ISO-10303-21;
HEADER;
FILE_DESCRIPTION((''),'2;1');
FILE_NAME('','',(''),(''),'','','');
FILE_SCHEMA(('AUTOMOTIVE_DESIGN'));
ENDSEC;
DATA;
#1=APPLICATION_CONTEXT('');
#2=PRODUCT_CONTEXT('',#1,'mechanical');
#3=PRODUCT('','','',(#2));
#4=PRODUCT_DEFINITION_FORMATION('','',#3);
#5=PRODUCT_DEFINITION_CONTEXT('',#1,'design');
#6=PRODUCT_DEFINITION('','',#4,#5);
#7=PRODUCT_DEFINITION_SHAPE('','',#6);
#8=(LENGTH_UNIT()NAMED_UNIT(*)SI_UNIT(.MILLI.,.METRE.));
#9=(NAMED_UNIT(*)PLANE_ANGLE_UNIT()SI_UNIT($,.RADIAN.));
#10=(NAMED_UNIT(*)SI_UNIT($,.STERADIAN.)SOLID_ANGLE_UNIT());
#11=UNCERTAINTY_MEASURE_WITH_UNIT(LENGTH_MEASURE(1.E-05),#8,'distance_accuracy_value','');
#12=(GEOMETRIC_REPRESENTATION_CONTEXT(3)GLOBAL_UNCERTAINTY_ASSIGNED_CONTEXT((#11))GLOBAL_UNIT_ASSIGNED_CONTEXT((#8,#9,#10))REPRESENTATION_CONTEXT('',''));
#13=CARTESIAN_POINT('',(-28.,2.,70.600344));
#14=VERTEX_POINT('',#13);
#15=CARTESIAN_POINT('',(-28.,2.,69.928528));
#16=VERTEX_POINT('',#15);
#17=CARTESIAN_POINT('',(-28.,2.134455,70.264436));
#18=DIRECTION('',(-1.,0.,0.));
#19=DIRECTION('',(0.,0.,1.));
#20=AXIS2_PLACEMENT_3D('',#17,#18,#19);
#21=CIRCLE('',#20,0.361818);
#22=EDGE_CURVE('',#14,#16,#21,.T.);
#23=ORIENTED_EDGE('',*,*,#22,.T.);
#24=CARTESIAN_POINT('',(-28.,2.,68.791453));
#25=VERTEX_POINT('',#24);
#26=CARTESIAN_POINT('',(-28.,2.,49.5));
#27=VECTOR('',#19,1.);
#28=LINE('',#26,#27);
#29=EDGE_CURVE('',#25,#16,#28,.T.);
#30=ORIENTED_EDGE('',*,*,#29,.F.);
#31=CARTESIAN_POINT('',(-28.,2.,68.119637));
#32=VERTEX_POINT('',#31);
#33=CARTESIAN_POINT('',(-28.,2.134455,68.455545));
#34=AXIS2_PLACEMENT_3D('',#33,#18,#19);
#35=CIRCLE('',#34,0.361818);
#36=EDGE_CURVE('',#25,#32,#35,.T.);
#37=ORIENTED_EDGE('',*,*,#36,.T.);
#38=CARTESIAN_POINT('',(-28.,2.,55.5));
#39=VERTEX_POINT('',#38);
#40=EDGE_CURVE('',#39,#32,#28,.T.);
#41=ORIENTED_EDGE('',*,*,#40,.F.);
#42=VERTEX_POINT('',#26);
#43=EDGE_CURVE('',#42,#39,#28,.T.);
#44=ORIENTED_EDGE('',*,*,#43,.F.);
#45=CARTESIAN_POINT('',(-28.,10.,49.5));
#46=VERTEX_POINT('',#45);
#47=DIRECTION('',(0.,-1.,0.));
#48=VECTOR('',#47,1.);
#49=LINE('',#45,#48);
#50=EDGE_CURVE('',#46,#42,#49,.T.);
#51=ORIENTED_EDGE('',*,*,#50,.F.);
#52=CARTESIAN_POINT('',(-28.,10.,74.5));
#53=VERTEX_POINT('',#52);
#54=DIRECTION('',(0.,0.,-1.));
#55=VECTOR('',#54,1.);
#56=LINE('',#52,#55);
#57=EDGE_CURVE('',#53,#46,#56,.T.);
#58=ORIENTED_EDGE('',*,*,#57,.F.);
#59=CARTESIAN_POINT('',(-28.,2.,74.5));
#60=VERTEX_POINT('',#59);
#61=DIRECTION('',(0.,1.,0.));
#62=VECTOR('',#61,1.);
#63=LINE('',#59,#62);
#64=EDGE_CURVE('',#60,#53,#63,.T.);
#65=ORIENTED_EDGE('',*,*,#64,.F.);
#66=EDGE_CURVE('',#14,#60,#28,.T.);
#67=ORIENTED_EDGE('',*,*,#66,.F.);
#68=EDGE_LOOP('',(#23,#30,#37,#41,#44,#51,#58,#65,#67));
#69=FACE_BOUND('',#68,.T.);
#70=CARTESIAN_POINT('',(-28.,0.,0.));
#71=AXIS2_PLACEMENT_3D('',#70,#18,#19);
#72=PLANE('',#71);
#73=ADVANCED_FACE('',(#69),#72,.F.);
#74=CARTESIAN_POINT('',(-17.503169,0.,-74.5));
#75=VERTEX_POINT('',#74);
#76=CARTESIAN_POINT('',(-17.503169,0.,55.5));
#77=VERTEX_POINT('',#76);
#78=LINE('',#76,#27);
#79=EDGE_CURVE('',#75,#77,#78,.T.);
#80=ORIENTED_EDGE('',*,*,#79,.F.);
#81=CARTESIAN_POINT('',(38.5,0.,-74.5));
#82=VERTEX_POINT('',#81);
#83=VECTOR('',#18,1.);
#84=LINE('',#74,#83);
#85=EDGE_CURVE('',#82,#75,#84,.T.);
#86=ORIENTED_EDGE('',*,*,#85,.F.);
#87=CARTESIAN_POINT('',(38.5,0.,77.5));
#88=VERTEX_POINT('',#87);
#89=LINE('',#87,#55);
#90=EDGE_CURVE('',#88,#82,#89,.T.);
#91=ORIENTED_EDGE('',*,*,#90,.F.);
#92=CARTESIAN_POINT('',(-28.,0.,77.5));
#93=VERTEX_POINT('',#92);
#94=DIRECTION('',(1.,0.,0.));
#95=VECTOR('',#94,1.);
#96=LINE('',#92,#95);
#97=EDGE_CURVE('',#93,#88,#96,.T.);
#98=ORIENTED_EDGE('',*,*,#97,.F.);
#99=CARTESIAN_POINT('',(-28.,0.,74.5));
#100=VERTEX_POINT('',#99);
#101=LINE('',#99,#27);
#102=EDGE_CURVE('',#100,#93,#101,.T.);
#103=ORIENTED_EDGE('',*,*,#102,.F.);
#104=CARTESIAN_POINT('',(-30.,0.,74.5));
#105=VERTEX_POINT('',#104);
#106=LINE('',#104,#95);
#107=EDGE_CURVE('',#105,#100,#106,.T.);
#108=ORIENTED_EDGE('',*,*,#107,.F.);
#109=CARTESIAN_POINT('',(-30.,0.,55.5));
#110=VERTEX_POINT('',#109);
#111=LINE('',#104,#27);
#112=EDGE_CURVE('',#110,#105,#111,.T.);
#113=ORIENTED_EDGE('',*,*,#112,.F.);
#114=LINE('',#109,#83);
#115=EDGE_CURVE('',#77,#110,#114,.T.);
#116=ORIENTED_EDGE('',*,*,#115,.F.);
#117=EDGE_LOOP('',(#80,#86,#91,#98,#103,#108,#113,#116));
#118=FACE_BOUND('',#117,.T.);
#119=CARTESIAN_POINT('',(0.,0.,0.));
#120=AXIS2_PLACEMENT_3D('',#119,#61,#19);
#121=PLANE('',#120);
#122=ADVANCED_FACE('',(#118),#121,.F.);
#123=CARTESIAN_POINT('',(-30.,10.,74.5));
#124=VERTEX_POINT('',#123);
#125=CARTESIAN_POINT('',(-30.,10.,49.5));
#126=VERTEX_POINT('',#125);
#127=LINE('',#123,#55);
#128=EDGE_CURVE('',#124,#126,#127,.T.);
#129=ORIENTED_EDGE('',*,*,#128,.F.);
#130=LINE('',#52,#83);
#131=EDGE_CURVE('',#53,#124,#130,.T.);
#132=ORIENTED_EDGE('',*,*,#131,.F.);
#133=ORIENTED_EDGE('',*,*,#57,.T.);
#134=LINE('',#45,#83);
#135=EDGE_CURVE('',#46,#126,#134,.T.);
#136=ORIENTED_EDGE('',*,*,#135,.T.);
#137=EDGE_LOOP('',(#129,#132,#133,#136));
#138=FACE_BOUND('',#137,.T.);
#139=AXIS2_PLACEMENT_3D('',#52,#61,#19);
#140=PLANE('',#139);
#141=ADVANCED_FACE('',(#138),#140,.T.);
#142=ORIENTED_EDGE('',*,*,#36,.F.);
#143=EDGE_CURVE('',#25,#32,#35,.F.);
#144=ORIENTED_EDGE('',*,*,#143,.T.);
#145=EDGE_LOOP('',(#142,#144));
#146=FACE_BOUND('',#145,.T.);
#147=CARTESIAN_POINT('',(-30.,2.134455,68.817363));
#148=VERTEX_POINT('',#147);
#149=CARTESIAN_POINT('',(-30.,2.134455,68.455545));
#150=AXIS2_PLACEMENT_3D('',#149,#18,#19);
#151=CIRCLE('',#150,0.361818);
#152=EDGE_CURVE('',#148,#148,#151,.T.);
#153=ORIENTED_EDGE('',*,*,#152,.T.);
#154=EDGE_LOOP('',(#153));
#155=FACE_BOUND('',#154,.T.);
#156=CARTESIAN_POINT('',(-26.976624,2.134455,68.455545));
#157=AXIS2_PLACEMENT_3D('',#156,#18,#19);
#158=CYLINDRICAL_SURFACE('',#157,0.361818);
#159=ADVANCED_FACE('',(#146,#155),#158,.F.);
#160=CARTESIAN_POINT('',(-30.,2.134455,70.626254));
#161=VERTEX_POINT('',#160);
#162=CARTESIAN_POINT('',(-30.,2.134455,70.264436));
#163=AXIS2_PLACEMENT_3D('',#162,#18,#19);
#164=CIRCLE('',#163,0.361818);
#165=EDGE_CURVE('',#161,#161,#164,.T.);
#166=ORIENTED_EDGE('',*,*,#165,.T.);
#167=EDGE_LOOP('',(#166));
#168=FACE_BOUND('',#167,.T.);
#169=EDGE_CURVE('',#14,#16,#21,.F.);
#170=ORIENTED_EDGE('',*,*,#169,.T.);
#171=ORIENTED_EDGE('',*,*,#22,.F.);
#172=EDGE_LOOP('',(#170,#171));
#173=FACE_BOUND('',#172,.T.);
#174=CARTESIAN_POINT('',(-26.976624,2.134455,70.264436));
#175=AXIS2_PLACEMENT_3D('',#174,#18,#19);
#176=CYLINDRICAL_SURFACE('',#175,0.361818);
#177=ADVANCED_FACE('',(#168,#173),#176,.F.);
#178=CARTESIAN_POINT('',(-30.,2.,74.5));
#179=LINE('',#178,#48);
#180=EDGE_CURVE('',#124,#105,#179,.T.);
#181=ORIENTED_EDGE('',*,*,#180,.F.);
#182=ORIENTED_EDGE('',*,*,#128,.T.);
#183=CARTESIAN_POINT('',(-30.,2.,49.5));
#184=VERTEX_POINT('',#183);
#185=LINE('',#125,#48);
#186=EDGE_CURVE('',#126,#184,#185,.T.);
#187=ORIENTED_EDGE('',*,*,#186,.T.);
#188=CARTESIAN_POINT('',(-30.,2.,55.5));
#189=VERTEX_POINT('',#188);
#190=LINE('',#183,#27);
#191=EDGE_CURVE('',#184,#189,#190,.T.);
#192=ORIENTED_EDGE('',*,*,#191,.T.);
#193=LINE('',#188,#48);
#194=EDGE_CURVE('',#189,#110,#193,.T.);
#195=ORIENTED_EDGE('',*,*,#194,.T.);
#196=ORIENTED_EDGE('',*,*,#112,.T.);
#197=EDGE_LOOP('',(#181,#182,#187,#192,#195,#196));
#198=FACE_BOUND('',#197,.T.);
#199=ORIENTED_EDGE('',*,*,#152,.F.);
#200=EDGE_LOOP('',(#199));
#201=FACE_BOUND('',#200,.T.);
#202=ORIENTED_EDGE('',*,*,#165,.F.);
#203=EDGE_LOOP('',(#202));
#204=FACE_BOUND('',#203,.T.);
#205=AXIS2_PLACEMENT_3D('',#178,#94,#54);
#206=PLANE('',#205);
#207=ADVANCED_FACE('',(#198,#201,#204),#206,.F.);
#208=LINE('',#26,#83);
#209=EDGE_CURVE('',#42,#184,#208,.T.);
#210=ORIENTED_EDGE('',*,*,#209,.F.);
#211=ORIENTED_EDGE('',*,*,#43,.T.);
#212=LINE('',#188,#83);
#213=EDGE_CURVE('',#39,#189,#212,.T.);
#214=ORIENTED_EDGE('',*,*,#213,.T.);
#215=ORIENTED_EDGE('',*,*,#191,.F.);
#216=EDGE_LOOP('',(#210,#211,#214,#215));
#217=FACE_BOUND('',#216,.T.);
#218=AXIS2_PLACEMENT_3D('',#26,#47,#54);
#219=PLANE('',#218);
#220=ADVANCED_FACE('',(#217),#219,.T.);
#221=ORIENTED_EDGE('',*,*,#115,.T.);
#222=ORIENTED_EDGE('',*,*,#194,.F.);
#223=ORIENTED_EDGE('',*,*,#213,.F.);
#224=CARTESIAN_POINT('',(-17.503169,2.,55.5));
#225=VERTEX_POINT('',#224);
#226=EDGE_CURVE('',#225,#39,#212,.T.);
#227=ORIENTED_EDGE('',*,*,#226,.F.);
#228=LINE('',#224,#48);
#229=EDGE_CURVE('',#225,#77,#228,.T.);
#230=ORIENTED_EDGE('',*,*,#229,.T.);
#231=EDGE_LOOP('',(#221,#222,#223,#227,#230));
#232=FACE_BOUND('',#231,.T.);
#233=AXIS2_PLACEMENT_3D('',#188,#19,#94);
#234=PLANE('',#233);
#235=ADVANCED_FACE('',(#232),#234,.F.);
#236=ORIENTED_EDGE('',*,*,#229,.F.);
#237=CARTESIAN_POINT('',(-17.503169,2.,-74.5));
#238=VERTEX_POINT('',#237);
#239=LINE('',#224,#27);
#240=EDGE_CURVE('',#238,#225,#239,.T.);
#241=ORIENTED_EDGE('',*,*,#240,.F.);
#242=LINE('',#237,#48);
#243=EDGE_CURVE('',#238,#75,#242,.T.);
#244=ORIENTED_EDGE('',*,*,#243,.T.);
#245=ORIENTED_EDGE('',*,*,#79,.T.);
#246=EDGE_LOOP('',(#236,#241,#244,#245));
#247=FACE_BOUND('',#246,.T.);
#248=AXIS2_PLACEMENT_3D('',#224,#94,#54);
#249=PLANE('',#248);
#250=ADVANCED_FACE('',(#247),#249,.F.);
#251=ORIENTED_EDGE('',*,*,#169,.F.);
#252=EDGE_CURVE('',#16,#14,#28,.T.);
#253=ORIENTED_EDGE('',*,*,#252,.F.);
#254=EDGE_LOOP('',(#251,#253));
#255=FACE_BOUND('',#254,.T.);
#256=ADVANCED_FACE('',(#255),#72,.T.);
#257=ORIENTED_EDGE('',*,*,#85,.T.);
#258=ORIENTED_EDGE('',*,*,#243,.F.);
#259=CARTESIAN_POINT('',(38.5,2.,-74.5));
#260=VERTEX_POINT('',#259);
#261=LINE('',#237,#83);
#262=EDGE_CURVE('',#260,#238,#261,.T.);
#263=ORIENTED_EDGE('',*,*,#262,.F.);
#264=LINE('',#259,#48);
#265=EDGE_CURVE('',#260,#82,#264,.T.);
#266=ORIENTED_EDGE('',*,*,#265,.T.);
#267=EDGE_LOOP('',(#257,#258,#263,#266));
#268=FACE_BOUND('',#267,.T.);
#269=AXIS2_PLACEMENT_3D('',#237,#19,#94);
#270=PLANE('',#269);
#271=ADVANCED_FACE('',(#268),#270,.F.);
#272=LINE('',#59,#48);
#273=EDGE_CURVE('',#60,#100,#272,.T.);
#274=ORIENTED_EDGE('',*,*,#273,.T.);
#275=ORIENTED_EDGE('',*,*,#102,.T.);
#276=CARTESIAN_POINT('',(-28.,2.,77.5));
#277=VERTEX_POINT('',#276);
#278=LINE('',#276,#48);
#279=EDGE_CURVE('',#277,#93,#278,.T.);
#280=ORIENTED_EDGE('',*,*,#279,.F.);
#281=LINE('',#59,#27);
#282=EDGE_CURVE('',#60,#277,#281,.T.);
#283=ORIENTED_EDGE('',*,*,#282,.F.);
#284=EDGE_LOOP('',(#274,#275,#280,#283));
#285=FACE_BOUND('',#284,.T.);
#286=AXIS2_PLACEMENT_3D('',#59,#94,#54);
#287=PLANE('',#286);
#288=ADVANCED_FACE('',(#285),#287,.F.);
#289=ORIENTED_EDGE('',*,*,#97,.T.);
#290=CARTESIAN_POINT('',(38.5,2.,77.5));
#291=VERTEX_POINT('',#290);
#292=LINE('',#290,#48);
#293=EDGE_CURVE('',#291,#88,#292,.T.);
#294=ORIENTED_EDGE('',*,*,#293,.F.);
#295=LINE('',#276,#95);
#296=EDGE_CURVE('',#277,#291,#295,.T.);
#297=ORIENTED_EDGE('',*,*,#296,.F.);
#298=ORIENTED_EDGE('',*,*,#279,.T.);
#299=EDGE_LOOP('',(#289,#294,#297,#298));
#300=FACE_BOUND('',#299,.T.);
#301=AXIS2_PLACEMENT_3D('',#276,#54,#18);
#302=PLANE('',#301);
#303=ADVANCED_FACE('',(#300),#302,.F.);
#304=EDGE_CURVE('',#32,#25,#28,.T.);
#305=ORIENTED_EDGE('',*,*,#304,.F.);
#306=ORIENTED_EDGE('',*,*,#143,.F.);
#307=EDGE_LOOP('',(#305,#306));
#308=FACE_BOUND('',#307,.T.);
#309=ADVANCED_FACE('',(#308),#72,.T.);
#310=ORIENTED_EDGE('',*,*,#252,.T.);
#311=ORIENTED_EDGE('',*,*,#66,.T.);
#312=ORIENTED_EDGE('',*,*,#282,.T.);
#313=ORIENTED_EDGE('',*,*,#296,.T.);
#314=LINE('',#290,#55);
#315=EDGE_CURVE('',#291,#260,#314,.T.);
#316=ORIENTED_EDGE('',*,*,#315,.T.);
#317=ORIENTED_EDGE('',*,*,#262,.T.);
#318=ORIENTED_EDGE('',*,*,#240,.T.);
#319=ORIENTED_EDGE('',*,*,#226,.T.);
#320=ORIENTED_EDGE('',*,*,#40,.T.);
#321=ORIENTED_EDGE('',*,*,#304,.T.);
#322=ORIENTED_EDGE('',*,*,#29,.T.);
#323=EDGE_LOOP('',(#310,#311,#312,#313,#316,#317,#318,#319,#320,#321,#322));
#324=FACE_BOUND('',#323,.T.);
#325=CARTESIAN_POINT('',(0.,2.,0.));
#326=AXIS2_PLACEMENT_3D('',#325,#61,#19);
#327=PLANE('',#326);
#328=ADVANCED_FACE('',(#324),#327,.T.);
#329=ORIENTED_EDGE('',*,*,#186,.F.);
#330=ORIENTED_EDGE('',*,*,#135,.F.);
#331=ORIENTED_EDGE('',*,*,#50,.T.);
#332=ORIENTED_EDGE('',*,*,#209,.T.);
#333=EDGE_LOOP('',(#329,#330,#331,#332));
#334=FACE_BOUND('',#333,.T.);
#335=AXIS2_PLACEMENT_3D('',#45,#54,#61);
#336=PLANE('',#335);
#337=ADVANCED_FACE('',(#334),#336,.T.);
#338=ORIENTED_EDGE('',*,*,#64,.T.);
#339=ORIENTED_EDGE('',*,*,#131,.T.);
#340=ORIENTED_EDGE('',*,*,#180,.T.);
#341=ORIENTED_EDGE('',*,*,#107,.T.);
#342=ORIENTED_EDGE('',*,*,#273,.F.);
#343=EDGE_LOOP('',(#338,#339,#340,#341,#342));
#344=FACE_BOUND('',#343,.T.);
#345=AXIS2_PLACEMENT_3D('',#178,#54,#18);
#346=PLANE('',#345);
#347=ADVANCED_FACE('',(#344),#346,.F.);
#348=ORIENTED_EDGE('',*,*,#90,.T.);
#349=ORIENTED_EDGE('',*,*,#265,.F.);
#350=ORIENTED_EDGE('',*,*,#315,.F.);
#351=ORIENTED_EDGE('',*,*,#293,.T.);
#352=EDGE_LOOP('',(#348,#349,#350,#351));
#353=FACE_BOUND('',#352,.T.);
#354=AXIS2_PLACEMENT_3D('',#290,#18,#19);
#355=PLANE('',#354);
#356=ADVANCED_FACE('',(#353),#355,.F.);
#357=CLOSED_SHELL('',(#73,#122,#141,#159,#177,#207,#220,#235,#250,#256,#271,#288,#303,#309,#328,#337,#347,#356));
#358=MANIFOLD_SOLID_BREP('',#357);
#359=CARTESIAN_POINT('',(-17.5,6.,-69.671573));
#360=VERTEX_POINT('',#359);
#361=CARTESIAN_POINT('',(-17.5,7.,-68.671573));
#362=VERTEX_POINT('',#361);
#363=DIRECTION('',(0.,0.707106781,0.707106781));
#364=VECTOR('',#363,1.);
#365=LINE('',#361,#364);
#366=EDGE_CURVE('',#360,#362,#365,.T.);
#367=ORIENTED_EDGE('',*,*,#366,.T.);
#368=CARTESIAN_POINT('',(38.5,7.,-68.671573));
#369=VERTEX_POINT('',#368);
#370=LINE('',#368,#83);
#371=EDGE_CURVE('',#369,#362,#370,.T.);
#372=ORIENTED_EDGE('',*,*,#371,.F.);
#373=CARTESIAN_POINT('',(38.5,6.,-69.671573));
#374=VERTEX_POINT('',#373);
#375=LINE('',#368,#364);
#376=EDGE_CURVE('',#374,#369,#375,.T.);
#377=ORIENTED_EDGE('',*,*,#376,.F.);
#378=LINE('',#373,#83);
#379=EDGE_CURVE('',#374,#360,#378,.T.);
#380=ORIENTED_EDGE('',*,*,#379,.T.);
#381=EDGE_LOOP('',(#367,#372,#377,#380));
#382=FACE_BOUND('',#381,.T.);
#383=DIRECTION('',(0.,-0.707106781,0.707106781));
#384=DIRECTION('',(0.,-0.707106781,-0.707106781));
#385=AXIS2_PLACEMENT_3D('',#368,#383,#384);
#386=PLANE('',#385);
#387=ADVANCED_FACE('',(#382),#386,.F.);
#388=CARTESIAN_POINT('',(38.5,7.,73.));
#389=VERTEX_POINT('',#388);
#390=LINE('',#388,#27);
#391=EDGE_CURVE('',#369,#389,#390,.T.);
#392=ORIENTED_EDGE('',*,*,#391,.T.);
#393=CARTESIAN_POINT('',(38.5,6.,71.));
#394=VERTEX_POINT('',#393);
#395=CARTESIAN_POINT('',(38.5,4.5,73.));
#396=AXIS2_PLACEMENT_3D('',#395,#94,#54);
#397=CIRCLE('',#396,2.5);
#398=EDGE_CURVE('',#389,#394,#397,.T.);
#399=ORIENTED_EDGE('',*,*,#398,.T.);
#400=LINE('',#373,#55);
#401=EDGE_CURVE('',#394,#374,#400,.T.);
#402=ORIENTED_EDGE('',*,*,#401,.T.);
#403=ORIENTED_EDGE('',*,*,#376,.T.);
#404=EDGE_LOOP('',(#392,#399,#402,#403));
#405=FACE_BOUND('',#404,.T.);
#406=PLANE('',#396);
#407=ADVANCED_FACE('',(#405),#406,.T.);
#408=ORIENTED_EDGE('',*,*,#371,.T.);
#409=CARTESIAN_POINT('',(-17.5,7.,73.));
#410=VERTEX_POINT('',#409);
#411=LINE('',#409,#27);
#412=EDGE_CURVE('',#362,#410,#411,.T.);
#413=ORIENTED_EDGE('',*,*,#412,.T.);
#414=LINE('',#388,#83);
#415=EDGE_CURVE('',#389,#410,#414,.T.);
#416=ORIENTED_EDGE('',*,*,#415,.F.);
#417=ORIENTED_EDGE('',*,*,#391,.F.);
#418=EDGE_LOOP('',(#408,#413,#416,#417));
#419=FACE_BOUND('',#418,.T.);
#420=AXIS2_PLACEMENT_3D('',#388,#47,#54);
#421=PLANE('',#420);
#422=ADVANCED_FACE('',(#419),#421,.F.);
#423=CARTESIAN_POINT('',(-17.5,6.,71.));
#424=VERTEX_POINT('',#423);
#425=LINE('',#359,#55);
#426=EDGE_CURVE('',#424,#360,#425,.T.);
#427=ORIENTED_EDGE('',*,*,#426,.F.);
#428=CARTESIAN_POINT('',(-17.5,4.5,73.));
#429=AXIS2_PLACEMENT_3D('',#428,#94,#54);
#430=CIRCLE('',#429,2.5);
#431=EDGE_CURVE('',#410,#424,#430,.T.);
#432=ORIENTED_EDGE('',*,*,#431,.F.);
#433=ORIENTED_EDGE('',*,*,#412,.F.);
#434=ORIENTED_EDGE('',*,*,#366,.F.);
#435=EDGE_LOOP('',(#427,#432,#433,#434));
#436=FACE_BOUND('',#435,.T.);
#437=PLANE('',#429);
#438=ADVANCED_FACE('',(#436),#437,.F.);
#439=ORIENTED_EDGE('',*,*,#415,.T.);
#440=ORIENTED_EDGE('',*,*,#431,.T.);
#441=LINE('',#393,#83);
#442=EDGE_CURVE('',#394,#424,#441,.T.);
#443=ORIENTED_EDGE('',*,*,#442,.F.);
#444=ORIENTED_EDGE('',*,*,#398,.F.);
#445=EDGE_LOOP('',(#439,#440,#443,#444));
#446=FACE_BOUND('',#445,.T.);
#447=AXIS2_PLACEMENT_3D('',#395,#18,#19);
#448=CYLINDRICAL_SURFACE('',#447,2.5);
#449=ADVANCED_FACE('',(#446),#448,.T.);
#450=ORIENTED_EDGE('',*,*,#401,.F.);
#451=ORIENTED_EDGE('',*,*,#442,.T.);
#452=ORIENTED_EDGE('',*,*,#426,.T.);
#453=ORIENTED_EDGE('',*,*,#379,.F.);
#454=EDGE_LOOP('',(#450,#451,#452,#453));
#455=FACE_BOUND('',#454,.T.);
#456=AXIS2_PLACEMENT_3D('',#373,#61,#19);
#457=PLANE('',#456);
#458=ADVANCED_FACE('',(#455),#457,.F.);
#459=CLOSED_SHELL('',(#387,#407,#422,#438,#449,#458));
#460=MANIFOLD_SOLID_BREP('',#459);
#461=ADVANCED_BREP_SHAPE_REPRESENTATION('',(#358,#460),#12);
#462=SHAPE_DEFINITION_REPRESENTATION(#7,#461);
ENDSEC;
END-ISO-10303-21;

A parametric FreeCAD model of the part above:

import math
import FreeCAD as App
import Part
import Sketcher
Q = App.Units.Quantity


def add_polygon(sketch, points):
    """Adds a closed chain of lines whose ends are joined by coincident constraints."""
    first, n = sketch.GeometryCount, len(points)
    for a, b in zip(points, points[1:] + points[:1]):
        sketch.addGeometry(Part.LineSegment(App.Vector(*a, 0), App.Vector(*b, 0)), False)
    for i in range(n):
        sketch.addConstraint(Sketcher.Constraint("Coincident", first + i, 2, first + (i + 1) % n, 1))

doc = App.newDocument("Part")
body = doc.addObject("PartDesign::Body", "Body")

sketch1 = body.newObject("Sketcher::SketchObject", "Sketch")
sketch1.AttachmentSupport = (doc.getObject("XZ_Plane"), [""])
sketch1.MapMode = "FlatFace"
add_polygon(sketch1, [(-30, 74.5), (-28, 74.5), (-28, 77.5), (38.5, 77.5), (38.5, -74.5), (-17.503169, -74.5), (-17.503169, 55.5), (-30, 55.5)])
sketch1.addConstraint([
    Sketcher.Constraint("Horizontal", 0),
    Sketcher.Constraint("Vertical", 1),
    Sketcher.Constraint("Horizontal", 2),
    Sketcher.Constraint("Vertical", 3),
    Sketcher.Constraint("Horizontal", 4),
    Sketcher.Constraint("Vertical", 5),
    Sketcher.Constraint("Horizontal", 6),
    Sketcher.Constraint("Vertical", 7),
    Sketcher.Constraint("DistanceX", 0, 1, 0, 2, 2.0),
    Sketcher.Constraint("DistanceY", 1, 1, 1, 2, 3.0),
    Sketcher.Constraint("DistanceY", 3, 2, 3, 1, 152.0),
    Sketcher.Constraint("DistanceY", 5, 1, 5, 2, 130.0),
    Sketcher.Constraint("DistanceX", 2, 1, 2, 2, 66.5),
    Sketcher.Constraint("DistanceX", 0, 2, -1, 1, 28.0),
    Sketcher.Constraint("DistanceY", -1, 1, 0, 2, 74.5),
    Sketcher.Constraint("DistanceX", 4, 2, 4, 1, 56.003169),
])
pad1 = body.newObject("PartDesign::Pad", "Pad")
pad1.Profile = sketch1
pad1.Length = 2
pad1.Reversed = True

sketch2 = body.newObject("Sketcher::SketchObject", "Sketch001")
sketch2.AttachmentSupport = (doc.getObject("YZ_Plane"), [""])
sketch2.MapMode = "FlatFace"
sketch2.AttachmentOffset = App.Placement(App.Vector(0, 0, -30), App.Rotation())
add_polygon(sketch2, [(10, 49.5), (2, 49.5), (2, 74.5), (10, 74.5)])
sketch2.addConstraint([
    Sketcher.Constraint("Horizontal", 0),
    Sketcher.Constraint("Vertical", 1),
    Sketcher.Constraint("Horizontal", 2),
    Sketcher.Constraint("Vertical", 3),
    Sketcher.Constraint("DistanceX", 0, 2, 0, 1, 8.0),
    Sketcher.Constraint("DistanceY", 1, 1, 1, 2, 25.0),
    Sketcher.Constraint("DistanceX", -1, 1, 0, 2, 2.0),
    Sketcher.Constraint("DistanceY", -1, 1, 0, 2, 49.5),
])
pad2 = body.newObject("PartDesign::Pad", "Pad001")
pad2.Profile = sketch2
pad2.Length = 2

sketch3 = body.newObject("Sketcher::SketchObject", "Sketch002")
sketch3.AttachmentSupport = (doc.getObject("YZ_Plane"), [""])
sketch3.MapMode = "FlatFace"
sketch3.AttachmentOffset = App.Placement(App.Vector(0, 0, -30), App.Rotation())
sketch3.addGeometry([
    Part.Circle(App.Vector(2.134455, 68.455545, 0), App.Vector(0, 0, 1), 0.361818),
    Part.Circle(App.Vector(2.134455, 70.264436, 0), App.Vector(0, 0, 1), 0.361818),
], False)
sketch3.addConstraint([
    Sketcher.Constraint("Equal", 0, 1),
    Sketcher.Constraint("Vertical", 0, 3, 1, 3),
    Sketcher.Constraint("Diameter", 0, 0.723636),
    Sketcher.Constraint("DistanceY", 0, 3, 1, 3, 1.808891),
    Sketcher.Constraint("DistanceX", -1, 1, 0, 3, 2.134455),
    Sketcher.Constraint("DistanceY", -1, 1, 0, 3, 68.455545),
])
pocket1 = body.newObject("PartDesign::Pocket", "Pocket")
pocket1.Profile = sketch3
pocket1.Length = 2
pocket1.Reversed = True
body2 = doc.addObject("PartDesign::Body", "Body001")

sketch4 = body2.newObject("Sketcher::SketchObject", "Sketch003")
sketch4.AttachmentSupport = (doc.getObject("YZ_Plane001"), [""])
sketch4.MapMode = "FlatFace"
sketch4.AttachmentOffset = App.Placement(App.Vector(0, 0, 10.5), App.Rotation())
sketch4.addGeometry([
    Part.LineSegment(App.Vector(6, -69.671573, 0), App.Vector(7, -68.671573, 0)),
    Part.LineSegment(App.Vector(7, -68.671573, 0), App.Vector(7, 73, 0)),
    Part.ArcOfCircle(Part.Circle(App.Vector(4.5, 73, 0), App.Vector(0, 0, 1), 2.5), math.radians(0), math.radians(306.869898)),
    Part.LineSegment(App.Vector(6, 71, 0), App.Vector(6, -69.671573, 0)),
], False)
sketch4.addConstraint([
    Sketcher.Constraint("Coincident", 0, 2, 1, 1),
    Sketcher.Constraint("Tangent", 1, 2, 2, 1),
    Sketcher.Constraint("Coincident", 2, 2, 3, 1),
    Sketcher.Constraint("Coincident", 3, 2, 0, 1),
    Sketcher.Constraint("Vertical", 1),
    Sketcher.Constraint("Vertical", 3),
    Sketcher.Constraint("Radius", 2, 2.5),
    Sketcher.Constraint("Angle", 0, Q("45 deg")),
    Sketcher.Constraint("DistanceY", -1, 1, 2, 3, 73.0),
    Sketcher.Constraint("DistanceX", -1, 1, 0, 2, 7.0),
    Sketcher.Constraint("DistanceX", -1, 1, 2, 2, 6.0),
    Sketcher.Constraint("DistanceY", 1, 1, 1, 2, 141.671573),
])
pad3 = body2.newObject("PartDesign::Pad", "Pad002")
pad3.Profile = sketch4
pad3.Length = 56
pad3.Midplane = True

doc.recompute()
